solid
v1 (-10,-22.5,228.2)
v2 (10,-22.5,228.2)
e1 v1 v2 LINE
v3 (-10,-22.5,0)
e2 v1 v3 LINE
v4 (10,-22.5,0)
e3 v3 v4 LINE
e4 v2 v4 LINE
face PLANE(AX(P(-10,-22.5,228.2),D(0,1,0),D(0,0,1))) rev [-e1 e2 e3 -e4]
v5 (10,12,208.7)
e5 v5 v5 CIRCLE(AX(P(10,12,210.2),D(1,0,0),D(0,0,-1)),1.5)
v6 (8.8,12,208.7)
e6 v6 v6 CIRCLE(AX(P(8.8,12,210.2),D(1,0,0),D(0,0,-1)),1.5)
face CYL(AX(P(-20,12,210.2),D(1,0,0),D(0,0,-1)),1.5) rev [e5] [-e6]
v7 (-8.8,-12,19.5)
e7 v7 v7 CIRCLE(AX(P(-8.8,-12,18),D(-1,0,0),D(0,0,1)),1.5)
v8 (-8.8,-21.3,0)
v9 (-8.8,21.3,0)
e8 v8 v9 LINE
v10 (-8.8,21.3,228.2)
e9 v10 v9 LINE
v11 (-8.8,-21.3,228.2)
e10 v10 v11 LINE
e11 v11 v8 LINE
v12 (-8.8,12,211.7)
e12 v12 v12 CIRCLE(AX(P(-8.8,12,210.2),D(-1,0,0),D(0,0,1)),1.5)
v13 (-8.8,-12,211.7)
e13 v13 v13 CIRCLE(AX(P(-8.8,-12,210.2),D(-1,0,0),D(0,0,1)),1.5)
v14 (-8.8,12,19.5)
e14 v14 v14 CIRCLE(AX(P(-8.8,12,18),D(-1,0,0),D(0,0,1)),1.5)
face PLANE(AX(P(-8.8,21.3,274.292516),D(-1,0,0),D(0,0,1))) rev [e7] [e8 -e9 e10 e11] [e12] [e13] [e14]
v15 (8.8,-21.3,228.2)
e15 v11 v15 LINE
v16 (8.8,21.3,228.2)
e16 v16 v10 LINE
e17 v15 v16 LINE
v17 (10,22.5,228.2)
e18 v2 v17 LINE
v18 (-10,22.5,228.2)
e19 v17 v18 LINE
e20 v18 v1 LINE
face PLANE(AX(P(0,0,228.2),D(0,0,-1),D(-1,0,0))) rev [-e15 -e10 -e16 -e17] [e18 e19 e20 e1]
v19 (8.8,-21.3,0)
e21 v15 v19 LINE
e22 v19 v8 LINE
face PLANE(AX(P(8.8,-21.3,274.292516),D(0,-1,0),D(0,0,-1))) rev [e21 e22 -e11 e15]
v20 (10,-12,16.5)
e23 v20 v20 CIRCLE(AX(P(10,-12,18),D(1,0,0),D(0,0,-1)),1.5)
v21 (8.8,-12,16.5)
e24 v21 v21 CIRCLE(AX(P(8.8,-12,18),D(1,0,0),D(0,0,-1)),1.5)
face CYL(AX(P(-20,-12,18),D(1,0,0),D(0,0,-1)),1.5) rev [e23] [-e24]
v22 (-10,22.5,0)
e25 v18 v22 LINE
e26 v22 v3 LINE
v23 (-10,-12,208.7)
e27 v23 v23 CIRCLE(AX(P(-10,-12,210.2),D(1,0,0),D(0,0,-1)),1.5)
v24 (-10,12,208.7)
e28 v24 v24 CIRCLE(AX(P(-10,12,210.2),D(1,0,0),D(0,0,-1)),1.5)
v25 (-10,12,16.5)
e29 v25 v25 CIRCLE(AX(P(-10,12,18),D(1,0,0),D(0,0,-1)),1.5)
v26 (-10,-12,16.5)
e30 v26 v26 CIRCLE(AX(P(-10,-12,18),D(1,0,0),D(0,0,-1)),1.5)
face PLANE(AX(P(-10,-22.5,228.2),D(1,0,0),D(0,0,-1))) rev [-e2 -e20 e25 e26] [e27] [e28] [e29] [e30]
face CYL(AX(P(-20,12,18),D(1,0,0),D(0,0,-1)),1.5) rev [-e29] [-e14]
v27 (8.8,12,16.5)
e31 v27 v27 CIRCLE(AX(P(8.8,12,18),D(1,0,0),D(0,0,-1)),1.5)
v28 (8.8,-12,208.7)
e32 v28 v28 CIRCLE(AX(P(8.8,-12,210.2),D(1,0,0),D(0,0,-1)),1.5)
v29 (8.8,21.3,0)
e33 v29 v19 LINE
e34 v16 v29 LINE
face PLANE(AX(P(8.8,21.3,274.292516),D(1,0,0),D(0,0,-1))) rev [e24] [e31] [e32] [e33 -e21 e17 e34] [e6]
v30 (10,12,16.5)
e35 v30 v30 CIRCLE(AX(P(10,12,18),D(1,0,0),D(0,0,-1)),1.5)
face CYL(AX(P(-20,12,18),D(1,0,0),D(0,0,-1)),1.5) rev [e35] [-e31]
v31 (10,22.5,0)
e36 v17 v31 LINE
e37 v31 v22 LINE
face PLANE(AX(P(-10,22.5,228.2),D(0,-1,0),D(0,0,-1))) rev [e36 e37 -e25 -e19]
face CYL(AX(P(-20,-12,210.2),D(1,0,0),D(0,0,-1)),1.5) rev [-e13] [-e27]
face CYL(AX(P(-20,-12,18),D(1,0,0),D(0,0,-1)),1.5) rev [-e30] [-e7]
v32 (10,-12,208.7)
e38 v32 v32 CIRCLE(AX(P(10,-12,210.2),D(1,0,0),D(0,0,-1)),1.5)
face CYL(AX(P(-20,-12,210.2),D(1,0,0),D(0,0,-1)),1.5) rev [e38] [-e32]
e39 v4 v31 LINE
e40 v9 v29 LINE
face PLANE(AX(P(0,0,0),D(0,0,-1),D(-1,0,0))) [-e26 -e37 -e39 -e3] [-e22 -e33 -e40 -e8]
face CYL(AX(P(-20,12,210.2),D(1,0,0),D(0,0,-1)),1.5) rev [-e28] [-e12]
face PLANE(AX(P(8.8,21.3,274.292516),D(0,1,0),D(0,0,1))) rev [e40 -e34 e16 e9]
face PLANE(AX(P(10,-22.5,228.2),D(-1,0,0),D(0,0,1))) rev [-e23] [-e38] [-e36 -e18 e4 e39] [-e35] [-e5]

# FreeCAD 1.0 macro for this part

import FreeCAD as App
import Part
import Sketcher
Q = App.Units.Quantity

doc = App.newDocument("Part")
body = doc.addObject("PartDesign::Body", "Body")

# Sketch on XY plane
sketch1 = doc.addObject("Sketcher::SketchObject", "Sketch")
body.addObject(sketch1)
sketch1.AttachmentSupport = (doc.XY_Plane, [""])
sketch1.MapMode = "FlatFace"
sketch1.addGeometry([
    Part.LineSegment(App.Vector(-10, 22.5, 0), App.Vector(-10, -22.5, 0)),
    Part.LineSegment(App.Vector(-10, -22.5, 0), App.Vector(10, -22.5, 0)),
    Part.LineSegment(App.Vector(10, -22.5, 0), App.Vector(10, 22.5, 0)),
    Part.LineSegment(App.Vector(10, 22.5, 0), App.Vector(-10, 22.5, 0)),
], False)
sketch1.addConstraint([
    Sketcher.Constraint("Coincident", 0, 2, 1, 1),
    Sketcher.Constraint("Coincident", 1, 2, 2, 1),
    Sketcher.Constraint("Coincident", 2, 2, 3, 1),
    Sketcher.Constraint("Coincident", 3, 2, 0, 1),
    Sketcher.Constraint("Vertical", 0),
    Sketcher.Constraint("Horizontal", 1),
    Sketcher.Constraint("Vertical", 2),
    Sketcher.Constraint("Horizontal", 3),
    Sketcher.Constraint("Symmetric", 0, 2, 2, 2, -1, 1),
    Sketcher.Constraint("DistanceX", 1, 1, 1, 2, Q("20 mm")),
    Sketcher.Constraint("DistanceY", 0, 2, 0, 1, Q("45 mm")),
])
pad1 = doc.addObject("PartDesign::Pad", "Pad")
body.addObject(pad1)
pad1.Profile = sketch1
pad1.Length = 228.2

# Sketch on XY plane
sketch2 = doc.addObject("Sketcher::SketchObject", "Sketch001")
body.addObject(sketch2)
sketch2.AttachmentSupport = (doc.XY_Plane, [""])
sketch2.MapMode = "FlatFace"
sketch2.addGeometry([
    Part.LineSegment(App.Vector(8.8, 21.3, 0), App.Vector(8.8, -21.3, 0)),
    Part.LineSegment(App.Vector(8.8, -21.3, 0), App.Vector(-8.8, -21.3, 0)),
    Part.LineSegment(App.Vector(-8.8, -21.3, 0), App.Vector(-8.8, 21.3, 0)),
    Part.LineSegment(App.Vector(-8.8, 21.3, 0), App.Vector(8.8, 21.3, 0)),
], False)
sketch2.addConstraint([
    Sketcher.Constraint("Coincident", 0, 2, 1, 1),
    Sketcher.Constraint("Coincident", 1, 2, 2, 1),
    Sketcher.Constraint("Coincident", 2, 2, 3, 1),
    Sketcher.Constraint("Coincident", 3, 2, 0, 1),
    Sketcher.Constraint("Vertical", 0),
    Sketcher.Constraint("Horizontal", 1),
    Sketcher.Constraint("Vertical", 2),
    Sketcher.Constraint("Horizontal", 3),
    Sketcher.Constraint("Symmetric", 0, 2, 2, 2, -1, 1),
    Sketcher.Constraint("DistanceX", 1, 2, 1, 1, Q("17.6 mm")),
    Sketcher.Constraint("DistanceY", 0, 2, 0, 1, Q("42.6 mm")),
])
pocket1 = doc.addObject("PartDesign::Pocket", "Pocket")
body.addObject(pocket1)
pocket1.Profile = sketch2
pocket1.Length = 228.2
pocket1.Reversed = True

# Sketch on YZ plane
sketch3 = doc.addObject("Sketcher::SketchObject", "Sketch002")
body.addObject(sketch3)
sketch3.AttachmentSupport = (doc.YZ_Plane, [""])
sketch3.MapMode = "FlatFace"
sketch3.AttachmentOffset = App.Placement(App.Vector(0, 0, 10), App.Rotation())
sketch3.addGeometry([
    Part.Circle(App.Vector(-12, 210.2, 0), App.Vector(0, 0, 1), 1.5),
    Part.Circle(App.Vector(12, 210.2, 0), App.Vector(0, 0, 1), 1.5),
    Part.Circle(App.Vector(12, 18, 0), App.Vector(0, 0, 1), 1.5),
    Part.Circle(App.Vector(-12, 18, 0), App.Vector(0, 0, 1), 1.5),
], False)
sketch3.addConstraint([
    Sketcher.Constraint("Equal", 0, 1),
    Sketcher.Constraint("Equal", 1, 2),
    Sketcher.Constraint("Equal", 2, 3),
    Sketcher.Constraint("Symmetric", 0, 3, 1, 3, -2),
    Sketcher.Constraint("Symmetric", 2, 3, 3, 3, -2),
    Sketcher.Constraint("Vertical", 1, 3, 2, 3),
    Sketcher.Constraint("Diameter", 0, Q("3 mm")),
    Sketcher.Constraint("DistanceX", 0, 3, -1, 1, Q("12 mm")),
    Sketcher.Constraint("DistanceY", -1, 1, 2, 3, Q("18 mm")),
    Sketcher.Constraint("DistanceY", -1, 1, 0, 3, Q("210.2 mm")),
])
pocket2 = doc.addObject("PartDesign::Pocket", "Pocket001")
body.addObject(pocket2)
pocket2.Profile = sketch3
pocket2.Length = 30

doc.recompute()
